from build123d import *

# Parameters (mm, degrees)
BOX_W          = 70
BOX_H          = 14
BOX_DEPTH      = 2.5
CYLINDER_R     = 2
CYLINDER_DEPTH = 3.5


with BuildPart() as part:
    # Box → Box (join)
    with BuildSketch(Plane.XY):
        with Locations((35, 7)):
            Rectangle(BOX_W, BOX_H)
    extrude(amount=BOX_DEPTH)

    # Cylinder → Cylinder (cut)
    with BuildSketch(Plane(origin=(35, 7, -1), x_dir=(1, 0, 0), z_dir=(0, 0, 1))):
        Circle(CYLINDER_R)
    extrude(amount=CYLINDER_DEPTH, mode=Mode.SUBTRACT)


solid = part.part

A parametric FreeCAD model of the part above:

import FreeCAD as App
import Part
import Sketcher

V = App.Vector
Q = App.Units.Quantity

doc = App.newDocument("Part")
body = doc.addObject("PartDesign::Body", "Body")

# Sketch on XY plane
sketch1 = body.newObject("Sketcher::SketchObject", "Sketch")
sketch1.AttachmentSupport = (doc.getObject("XY_Plane"), [""])
sketch1.MapMode = "FlatFace"
sketch1.addGeometry([
    Part.LineSegment(V(0, 14, 0), V(0, 0, 0)),
    Part.LineSegment(V(0, 0, 0), V(70, 0, 0)),
    Part.LineSegment(V(70, 0, 0), V(70, 14, 0)),
    Part.LineSegment(V(70, 14, 0), V(0, 14, 0)),
], False)
sketch1.addConstraint([
    Sketcher.Constraint("Coincident", 0, 2, 1, 1),
    Sketcher.Constraint("Coincident", 1, 2, 2, 1),
    Sketcher.Constraint("Coincident", 2, 2, 3, 1),
    Sketcher.Constraint("Coincident", 3, 2, 0, 1),
    Sketcher.Constraint("Vertical", 0),
    Sketcher.Constraint("Horizontal", 1),
    Sketcher.Constraint("Vertical", 2),
    Sketcher.Constraint("Horizontal", 3),
    Sketcher.Constraint("Coincident", 0, 2, -1, 1),
    Sketcher.Constraint("DistanceX", 1, 1, 1, 2, Q("70 mm")),
    Sketcher.Constraint("DistanceY", 0, 2, 0, 1, Q("14 mm")),
])
pad1 = body.newObject("PartDesign::Pad", "Pad")
pad1.Profile = sketch1
pad1.Length = 2.5

# Sketch on XY plane
sketch2 = body.newObject("Sketcher::SketchObject", "Sketch001")
sketch2.AttachmentSupport = (doc.getObject("XY_Plane"), [""])
sketch2.MapMode = "FlatFace"
sketch2.AttachmentOffset = App.Placement(V(0, 0, -1), App.Rotation())
sketch2.addGeometry(Part.Circle(V(35, 7, 0), V(0, 0, 1), 2), False)
sketch2.addConstraint([
    Sketcher.Constraint("Diameter", 0, Q("4 mm")),
    Sketcher.Constraint("DistanceX", -1, 1, 0, 3, Q("35 mm")),
    Sketcher.Constraint("DistanceY", -1, 1, 0, 3, Q("7 mm")),
])
pocket1 = body.newObject("PartDesign::Pocket", "Pocket")
pocket1.Profile = sketch2
pocket1.Length = 3.5
pocket1.Reversed = True

doc.recompute()
